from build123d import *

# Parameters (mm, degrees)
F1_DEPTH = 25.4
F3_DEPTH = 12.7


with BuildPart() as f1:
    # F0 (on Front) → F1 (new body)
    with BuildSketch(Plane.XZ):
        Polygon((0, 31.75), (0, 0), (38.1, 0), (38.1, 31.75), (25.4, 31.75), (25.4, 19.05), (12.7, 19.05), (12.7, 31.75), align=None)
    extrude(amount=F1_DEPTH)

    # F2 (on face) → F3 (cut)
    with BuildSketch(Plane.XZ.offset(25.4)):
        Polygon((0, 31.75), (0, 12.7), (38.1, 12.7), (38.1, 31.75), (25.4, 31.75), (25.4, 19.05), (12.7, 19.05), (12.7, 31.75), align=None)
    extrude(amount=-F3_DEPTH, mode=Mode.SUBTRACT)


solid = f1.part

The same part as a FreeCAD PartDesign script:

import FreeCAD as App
import Part
import Sketcher

V = App.Vector
Q = App.Units.Quantity

doc = App.newDocument("Part")
body = doc.addObject("PartDesign::Body", "Body")

# Sketch on XZ plane
sketch1 = body.newObject("Sketcher::SketchObject", "Sketch")
sketch1.AttachmentSupport = (doc.getObject("XZ_Plane"), [""])
sketch1.MapMode = "FlatFace"
sketch1.addGeometry(Part.LineSegment(V(0, 31.75, 0), V(0, 0, 0)), False)
sketch1.addGeometry(Part.LineSegment(V(0, 0, 0), V(38.1, 0, 0)), False)
sketch1.addGeometry(Part.LineSegment(V(38.1, 0, 0), V(38.1, 31.75, 0)), False)
sketch1.addGeometry(Part.LineSegment(V(38.1, 31.75, 0), V(25.4, 31.75, 0)), False)
sketch1.addGeometry(Part.LineSegment(V(25.4, 31.75, 0), V(25.4, 19.05, 0)), False)
sketch1.addGeometry(Part.LineSegment(V(25.4, 19.05, 0), V(12.7, 19.05, 0)), False)
sketch1.addGeometry(Part.LineSegment(V(12.7, 19.05, 0), V(12.7, 31.75, 0)), False)
sketch1.addGeometry(Part.LineSegment(V(12.7, 31.75, 0), V(0, 31.75, 0)), False)
sketch1.addConstraint(Sketcher.Constraint("Coincident", 0, 2, 1, 1))
sketch1.addConstraint(Sketcher.Constraint("Coincident", 1, 2, 2, 1))
sketch1.addConstraint(Sketcher.Constraint("Coincident", 2, 2, 3, 1))
sketch1.addConstraint(Sketcher.Constraint("Coincident", 3, 2, 4, 1))
sketch1.addConstraint(Sketcher.Constraint("Coincident", 4, 2, 5, 1))
sketch1.addConstraint(Sketcher.Constraint("Coincident", 5, 2, 6, 1))
sketch1.addConstraint(Sketcher.Constraint("Coincident", 6, 2, 7, 1))
sketch1.addConstraint(Sketcher.Constraint("Coincident", 7, 2, 0, 1))
sketch1.addConstraint(Sketcher.Constraint("Vertical", 0))
sketch1.addConstraint(Sketcher.Constraint("Horizontal", 1))
sketch1.addConstraint(Sketcher.Constraint("Vertical", 2))
sketch1.addConstraint(Sketcher.Constraint("Horizontal", 3))
sketch1.addConstraint(Sketcher.Constraint("Vertical", 4))
sketch1.addConstraint(Sketcher.Constraint("Horizontal", 5))
sketch1.addConstraint(Sketcher.Constraint("Vertical", 6))
sketch1.addConstraint(Sketcher.Constraint("Horizontal", 7))
sketch1.addConstraint(Sketcher.Constraint("Coincident", 0, 2, -1, 1))
sketch1.addConstraint(Sketcher.Constraint("Horizontal", 3, 2, 6, 2))
sketch1.addConstraint(Sketcher.Constraint("Equal", 3, 5))
sketch1.addConstraint(Sketcher.Constraint("Equal", 5, 7))
sketch1.addConstraint(Sketcher.Constraint("Equal", 7, 4))
sketch1.addConstraint(Sketcher.Constraint("DistanceX", 1, 1, 1, 2, Q("1.5 in")))
sketch1.addConstraint(Sketcher.Constraint("DistanceY", 0, 2, 0, 1, Q("1.25 in")))
pad1 = body.newObject("PartDesign::Pad", "Pad")
pad1.Profile = sketch1
pad1.Length = Q("1 in")

# Sketch on XZ plane
sketch2 = body.newObject("Sketcher::SketchObject", "Sketch001")
sketch2.AttachmentSupport = (doc.getObject("XZ_Plane"), [""])
sketch2.MapMode = "FlatFace"
sketch2.AttachmentOffset = App.Placement(V(0, 0, 1 * 25.4), App.Rotation())
sketch2.addGeometry(Part.LineSegment(V(0, 31.75, 0), V(0, 12.7, 0)), False)
sketch2.addGeometry(Part.LineSegment(V(0, 12.7, 0), V(38.1, 12.7, 0)), False)
sketch2.addGeometry(Part.LineSegment(V(38.1, 12.7, 0), V(38.1, 31.75, 0)), False)
sketch2.addGeometry(Part.LineSegment(V(38.1, 31.75, 0), V(25.4, 31.75, 0)), False)
sketch2.addGeometry(Part.LineSegment(V(25.4, 31.75, 0), V(25.4, 19.05, 0)), False)
sketch2.addGeometry(Part.LineSegment(V(25.4, 19.05, 0), V(12.7, 19.05, 0)), False)
sketch2.addGeometry(Part.LineSegment(V(12.7, 19.05, 0), V(12.7, 31.75, 0)), False)
sketch2.addGeometry(Part.LineSegment(V(12.7, 31.75, 0), V(0, 31.75, 0)), False)
sketch2.addConstraint(Sketcher.Constraint("Coincident", 0, 2, 1, 1))
sketch2.addConstraint(Sketcher.Constraint("Coincident", 1, 2, 2, 1))
sketch2.addConstraint(Sketcher.Constraint("Coincident", 2, 2, 3, 1))
sketch2.addConstraint(Sketcher.Constraint("Coincident", 3, 2, 4, 1))
sketch2.addConstraint(Sketcher.Constraint("Coincident", 4, 2, 5, 1))
sketch2.addConstraint(Sketcher.Constraint("Coincident", 5, 2, 6, 1))
sketch2.addConstraint(Sketcher.Constraint("Coincident", 6, 2, 7, 1))
sketch2.addConstraint(Sketcher.Constraint("Coincident", 7, 2, 0, 1))
sketch2.addConstraint(Sketcher.Constraint("Vertical", 0))
sketch2.addConstraint(Sketcher.Constraint("Horizontal", 1))
sketch2.addConstraint(Sketcher.Constraint("Vertical", 2))
sketch2.addConstraint(Sketcher.Constraint("Horizontal", 3))
sketch2.addConstraint(Sketcher.Constraint("Vertical", 4))
sketch2.addConstraint(Sketcher.Constraint("Horizontal", 5))
sketch2.addConstraint(Sketcher.Constraint("Vertical", 6))
sketch2.addConstraint(Sketcher.Constraint("Horizontal", 7))
sketch2.addConstraint(Sketcher.Constraint("PointOnObject", 0, 2, -2))
sketch2.addConstraint(Sketcher.Constraint("Horizontal", 3, 2, 6, 2))
sketch2.addConstraint(Sketcher.Constraint("Equal", 3, 5))
sketch2.addConstraint(Sketcher.Constraint("Equal", 5, 7))
sketch2.addConstraint(Sketcher.Constraint("Equal", 7, 4))
sketch2.addConstraint(Sketcher.Constraint("DistanceX", 1, 1, 1, 2, Q("1.5 in")))
sketch2.addConstraint(Sketcher.Constraint("DistanceY", 0, 2, 0, 1, Q("0.75 in")))
sketch2.addConstraint(Sketcher.Constraint("DistanceY", -1, 1, 0, 2, Q("0.5 in")))
pocket1 = body.newObject("PartDesign::Pocket", "Pocket")
pocket1.Profile = sketch2
pocket1.Length = Q("0.5 in")

doc.recompute()
